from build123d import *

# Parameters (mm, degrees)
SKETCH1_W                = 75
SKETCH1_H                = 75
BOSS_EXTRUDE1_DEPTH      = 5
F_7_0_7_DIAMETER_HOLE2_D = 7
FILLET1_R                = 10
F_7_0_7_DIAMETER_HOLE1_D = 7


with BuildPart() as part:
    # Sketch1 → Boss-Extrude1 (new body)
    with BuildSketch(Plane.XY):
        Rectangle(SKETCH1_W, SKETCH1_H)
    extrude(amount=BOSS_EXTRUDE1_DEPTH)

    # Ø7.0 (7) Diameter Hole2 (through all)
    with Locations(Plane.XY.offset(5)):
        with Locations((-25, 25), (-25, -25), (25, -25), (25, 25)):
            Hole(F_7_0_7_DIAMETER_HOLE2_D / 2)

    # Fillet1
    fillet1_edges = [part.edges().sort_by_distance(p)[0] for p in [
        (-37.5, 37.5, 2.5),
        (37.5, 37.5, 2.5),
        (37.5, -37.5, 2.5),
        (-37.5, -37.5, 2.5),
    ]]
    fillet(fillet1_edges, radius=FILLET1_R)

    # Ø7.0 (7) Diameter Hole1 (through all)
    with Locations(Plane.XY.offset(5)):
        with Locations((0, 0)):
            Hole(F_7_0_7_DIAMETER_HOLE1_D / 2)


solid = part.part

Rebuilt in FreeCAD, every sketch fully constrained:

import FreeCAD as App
import Part
import Sketcher


def edges_at(feature, points):
    """Names of the edges that pass closest to the given points."""
    edges = feature.Shape.Edges
    near = lambda p: min(range(len(edges)), key=lambda i: edges[i].distToShape(Part.Vertex(*p))[0])
    return sorted({f"Edge{near(p) + 1}" for p in points})

doc = App.newDocument("Part")
params = doc.addObject("Spreadsheet::Sheet", "Params")
for row, (alias, value) in enumerate([
    ("sketch1_width", "75 mm"),
    ("pad1_length", "5 mm"),
    ("sketch2_diameter", "7 mm"),
    ("hole_diameter", "7 mm"),
    ("fillet_radius", "10 mm"),
    ("sketch3_diameter", "7 mm"),
    ("hole2_diameter", "7 mm"),
], start=1):
    params.set(f"A{row}", alias)
    params.set(f"B{row}", "=" + value)
    params.setAlias(f"B{row}", alias)

body = doc.addObject("PartDesign::Body", "Body")

# Sketch on XY plane
sketch1 = body.newObject("Sketcher::SketchObject", "Sketch")
sketch1.AttachmentSupport = (doc.getObject("XY_Plane"), [""])
sketch1.MapMode = "FlatFace"
sketch1.addGeometry([
    Part.LineSegment(App.Vector(-37.5, 37.5, 0), App.Vector(-37.5, -37.5, 0)),
    Part.LineSegment(App.Vector(-37.5, -37.5, 0), App.Vector(37.5, -37.5, 0)),
    Part.LineSegment(App.Vector(37.5, -37.5, 0), App.Vector(37.5, 37.5, 0)),
    Part.LineSegment(App.Vector(37.5, 37.5, 0), App.Vector(-37.5, 37.5, 0)),
], False)
sketch1.addConstraint([
    Sketcher.Constraint("Coincident", 0, 2, 1, 1),
    Sketcher.Constraint("Coincident", 1, 2, 2, 1),
    Sketcher.Constraint("Coincident", 2, 2, 3, 1),
    Sketcher.Constraint("Coincident", 3, 2, 0, 1),
    Sketcher.Constraint("Vertical", 0),
    Sketcher.Constraint("Horizontal", 1),
    Sketcher.Constraint("Vertical", 2),
    Sketcher.Constraint("Horizontal", 3),
    Sketcher.Constraint("Symmetric", 0, 2, 2, 2, -1, 1),
    Sketcher.Constraint("Equal", 3, 0),
    Sketcher.Constraint("DistanceX", 1, 1, 1, 2, 75.0),
])
sketch1.setExpression("Constraints[10]", "Params.sketch1_width")
pad1 = body.newObject("PartDesign::Pad", "Pad")
pad1.Profile = sketch1
pad1.setExpression("Length", "Params.pad1_length")

# Sketch on XY plane
sketch2 = body.newObject("Sketcher::SketchObject", "Sketch001")
sketch2.AttachmentSupport = (doc.getObject("XY_Plane"), [""])
sketch2.MapMode = "FlatFace"
sketch2.AttachmentOffset = App.Placement(App.Vector(0, 0, 5), App.Rotation())
sketch2.addGeometry([
    Part.Circle(App.Vector(-25, 25, 0), App.Vector(0, 0, 1), 3.5),
    Part.Circle(App.Vector(-25, -25, 0), App.Vector(0, 0, 1), 3.5),
    Part.Circle(App.Vector(25, -25, 0), App.Vector(0, 0, 1), 3.5),
    Part.Circle(App.Vector(25, 25, 0), App.Vector(0, 0, 1), 3.5),
], False)
sketch2.addConstraint([
    Sketcher.Constraint("Equal", 0, 1),
    Sketcher.Constraint("Equal", 1, 2),
    Sketcher.Constraint("Equal", 2, 3),
    Sketcher.Constraint("Symmetric", 0, 3, 2, 3, -1, 1),
    Sketcher.Constraint("Symmetric", 1, 3, 3, 3, -1, 1),
    Sketcher.Constraint("Symmetric", 1, 3, 2, 3, -2),
    Sketcher.Constraint("Diameter", 0, 7.0),
    Sketcher.Constraint("DistanceX", 0, 3, -1, 1, 25.0),
    Sketcher.Constraint("DistanceY", -1, 1, 0, 3, 25.0),
])
sketch2.setExpression("Constraints[6]", "Params.sketch2_diameter")
doc.recompute()
hole = body.newObject("PartDesign::Hole", "Hole")
hole.Profile = sketch2
hole.ThreadType = "None"
hole.setExpression("Diameter", "Params.hole_diameter")
hole.DepthType = "ThroughAll"
doc.recompute()

fillet = body.newObject("PartDesign::Fillet", "Fillet")
fillet.Base = (hole, edges_at(hole, [
    (-37.5, 37.5, 2.5),
    (37.5, 37.5, 2.5),
    (37.5, -37.5, 2.5),
    (-37.5, -37.5, 2.5),
]))
fillet.setExpression("Radius", "Params.fillet_radius")

# Sketch on XY plane
sketch3 = body.newObject("Sketcher::SketchObject", "Sketch002")
sketch3.AttachmentSupport = (doc.getObject("XY_Plane"), [""])
sketch3.MapMode = "FlatFace"
sketch3.AttachmentOffset = App.Placement(App.Vector(0, 0, 5), App.Rotation())
sketch3.addGeometry(Part.Circle(App.Vector(0, 0, 0), App.Vector(0, 0, 1), 3.5), False)
sketch3.addConstraint([
    Sketcher.Constraint("Coincident", 0, 3, -1, 1),
    Sketcher.Constraint("Diameter", 0, 7.0),
])
sketch3.setExpression("Constraints[1]", "Params.sketch3_diameter")
doc.recompute()
hole2 = body.newObject("PartDesign::Hole", "Hole001")
hole2.Profile = sketch3
hole2.ThreadType = "None"
hole2.setExpression("Diameter", "Params.hole2_diameter")
hole2.DepthType = "ThroughAll"

doc.recompute()
